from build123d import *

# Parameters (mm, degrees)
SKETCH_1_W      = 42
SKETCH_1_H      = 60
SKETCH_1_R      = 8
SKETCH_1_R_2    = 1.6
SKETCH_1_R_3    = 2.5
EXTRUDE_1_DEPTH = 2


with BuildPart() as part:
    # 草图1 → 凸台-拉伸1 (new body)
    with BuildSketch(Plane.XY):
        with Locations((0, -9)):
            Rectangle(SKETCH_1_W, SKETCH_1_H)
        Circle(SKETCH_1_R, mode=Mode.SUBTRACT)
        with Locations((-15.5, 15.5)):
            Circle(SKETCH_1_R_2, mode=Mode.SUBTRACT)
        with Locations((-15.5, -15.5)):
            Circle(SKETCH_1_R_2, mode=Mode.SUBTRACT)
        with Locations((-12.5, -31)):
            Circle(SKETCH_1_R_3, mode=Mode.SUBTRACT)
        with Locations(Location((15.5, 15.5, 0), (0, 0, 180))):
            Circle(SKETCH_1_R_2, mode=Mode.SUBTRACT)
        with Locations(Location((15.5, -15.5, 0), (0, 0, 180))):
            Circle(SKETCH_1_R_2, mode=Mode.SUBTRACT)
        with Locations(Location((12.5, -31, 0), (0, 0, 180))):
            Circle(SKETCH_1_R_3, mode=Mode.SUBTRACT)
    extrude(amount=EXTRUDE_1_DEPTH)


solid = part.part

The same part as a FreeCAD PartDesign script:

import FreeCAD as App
import Part
import Sketcher
Q = App.Units.Quantity

doc = App.newDocument("Part")
body = doc.addObject("PartDesign::Body", "Body")

# Sketch on XY plane
sketch1 = body.newObject("Sketcher::SketchObject", "Sketch")
sketch1.AttachmentSupport = (doc.getObject("XY_Plane"), [""])
sketch1.MapMode = "FlatFace"
sketch1.addGeometry([
    Part.LineSegment(App.Vector(-21, 21, 0), App.Vector(-21, -39, 0)),  # 0
    Part.LineSegment(App.Vector(-21, -39, 0), App.Vector(21, -39, 0)),  # 1
    Part.LineSegment(App.Vector(21, -39, 0), App.Vector(21, 21, 0)),  # 2
    Part.LineSegment(App.Vector(21, 21, 0), App.Vector(-21, 21, 0)),  # 3
    Part.Circle(App.Vector(-12.5, -31, 0), App.Vector(0, 0, 1), 2.5),  # 4
    Part.Circle(App.Vector(-15.5, -15.5, 0), App.Vector(0, 0, 1), 1.6),  # 5
    Part.Circle(App.Vector(12.5, -31, 0), App.Vector(0, 0, 1), 2.5),  # 6
    Part.Circle(App.Vector(15.5, -15.5, 0), App.Vector(0, 0, 1), 1.6),  # 7
    Part.Circle(App.Vector(-15.5, 15.5, 0), App.Vector(0, 0, 1), 1.6),  # 8
    Part.Circle(App.Vector(0, 0, 0), App.Vector(0, 0, 1), 8),  # 9
    Part.Circle(App.Vector(15.5, 15.5, 0), App.Vector(0, 0, 1), 1.6),  # 10
], False)
sketch1.addConstraint([
    Sketcher.Constraint("Coincident", 0, 2, 1, 1),
    Sketcher.Constraint("Coincident", 1, 2, 2, 1),
    Sketcher.Constraint("Coincident", 2, 2, 3, 1),
    Sketcher.Constraint("Coincident", 3, 2, 0, 1),
    Sketcher.Constraint("Vertical", 0),
    Sketcher.Constraint("Horizontal", 1),
    Sketcher.Constraint("Vertical", 2),
    Sketcher.Constraint("Horizontal", 3),
    Sketcher.Constraint("Coincident", 9, 3, -1, 1),
    Sketcher.Constraint("Equal", 4, 6),
    Sketcher.Constraint("Equal", 5, 7),
    Sketcher.Constraint("Equal", 7, 8),
    Sketcher.Constraint("Equal", 8, 10),
    Sketcher.Constraint("Symmetric", 7, 3, 8, 3, -1, 1),
    Sketcher.Constraint("Symmetric", 5, 3, 10, 3, -1, 1),
    Sketcher.Constraint("Symmetric", 4, 3, 6, 3, -2),
    Sketcher.Constraint("Symmetric", 5, 3, 7, 3, -2),
    Sketcher.Constraint("Diameter", 4, Q("5 mm")),
    Sketcher.Constraint("Diameter", 9, Q("16 mm")),
    Sketcher.Constraint("Diameter", 5, Q("3.2 mm")),
    Sketcher.Constraint("DistanceX", 1, 1, 1, 2, Q("42 mm")),
    Sketcher.Constraint("DistanceY", 0, 2, 0, 1, Q("60 mm")),
    Sketcher.Constraint("DistanceY", 4, 3, -1, 1, Q("31 mm")),
    Sketcher.Constraint("DistanceX", 0, 2, -1, 1, Q("21 mm")),
    Sketcher.Constraint("DistanceY", 0, 2, -1, 1, Q("39 mm")),
    Sketcher.Constraint("DistanceX", 5, 3, 4, 3, Q("3 mm")),
    Sketcher.Constraint("DistanceX", 4, 3, 6, 3, Q("25 mm")),
    Sketcher.Constraint("DistanceY", 5, 3, 8, 3, Q("31 mm")),
])
pad1 = body.newObject("PartDesign::Pad", "Pad")
pad1.Profile = sketch1
pad1.Length = 2

doc.recompute()
